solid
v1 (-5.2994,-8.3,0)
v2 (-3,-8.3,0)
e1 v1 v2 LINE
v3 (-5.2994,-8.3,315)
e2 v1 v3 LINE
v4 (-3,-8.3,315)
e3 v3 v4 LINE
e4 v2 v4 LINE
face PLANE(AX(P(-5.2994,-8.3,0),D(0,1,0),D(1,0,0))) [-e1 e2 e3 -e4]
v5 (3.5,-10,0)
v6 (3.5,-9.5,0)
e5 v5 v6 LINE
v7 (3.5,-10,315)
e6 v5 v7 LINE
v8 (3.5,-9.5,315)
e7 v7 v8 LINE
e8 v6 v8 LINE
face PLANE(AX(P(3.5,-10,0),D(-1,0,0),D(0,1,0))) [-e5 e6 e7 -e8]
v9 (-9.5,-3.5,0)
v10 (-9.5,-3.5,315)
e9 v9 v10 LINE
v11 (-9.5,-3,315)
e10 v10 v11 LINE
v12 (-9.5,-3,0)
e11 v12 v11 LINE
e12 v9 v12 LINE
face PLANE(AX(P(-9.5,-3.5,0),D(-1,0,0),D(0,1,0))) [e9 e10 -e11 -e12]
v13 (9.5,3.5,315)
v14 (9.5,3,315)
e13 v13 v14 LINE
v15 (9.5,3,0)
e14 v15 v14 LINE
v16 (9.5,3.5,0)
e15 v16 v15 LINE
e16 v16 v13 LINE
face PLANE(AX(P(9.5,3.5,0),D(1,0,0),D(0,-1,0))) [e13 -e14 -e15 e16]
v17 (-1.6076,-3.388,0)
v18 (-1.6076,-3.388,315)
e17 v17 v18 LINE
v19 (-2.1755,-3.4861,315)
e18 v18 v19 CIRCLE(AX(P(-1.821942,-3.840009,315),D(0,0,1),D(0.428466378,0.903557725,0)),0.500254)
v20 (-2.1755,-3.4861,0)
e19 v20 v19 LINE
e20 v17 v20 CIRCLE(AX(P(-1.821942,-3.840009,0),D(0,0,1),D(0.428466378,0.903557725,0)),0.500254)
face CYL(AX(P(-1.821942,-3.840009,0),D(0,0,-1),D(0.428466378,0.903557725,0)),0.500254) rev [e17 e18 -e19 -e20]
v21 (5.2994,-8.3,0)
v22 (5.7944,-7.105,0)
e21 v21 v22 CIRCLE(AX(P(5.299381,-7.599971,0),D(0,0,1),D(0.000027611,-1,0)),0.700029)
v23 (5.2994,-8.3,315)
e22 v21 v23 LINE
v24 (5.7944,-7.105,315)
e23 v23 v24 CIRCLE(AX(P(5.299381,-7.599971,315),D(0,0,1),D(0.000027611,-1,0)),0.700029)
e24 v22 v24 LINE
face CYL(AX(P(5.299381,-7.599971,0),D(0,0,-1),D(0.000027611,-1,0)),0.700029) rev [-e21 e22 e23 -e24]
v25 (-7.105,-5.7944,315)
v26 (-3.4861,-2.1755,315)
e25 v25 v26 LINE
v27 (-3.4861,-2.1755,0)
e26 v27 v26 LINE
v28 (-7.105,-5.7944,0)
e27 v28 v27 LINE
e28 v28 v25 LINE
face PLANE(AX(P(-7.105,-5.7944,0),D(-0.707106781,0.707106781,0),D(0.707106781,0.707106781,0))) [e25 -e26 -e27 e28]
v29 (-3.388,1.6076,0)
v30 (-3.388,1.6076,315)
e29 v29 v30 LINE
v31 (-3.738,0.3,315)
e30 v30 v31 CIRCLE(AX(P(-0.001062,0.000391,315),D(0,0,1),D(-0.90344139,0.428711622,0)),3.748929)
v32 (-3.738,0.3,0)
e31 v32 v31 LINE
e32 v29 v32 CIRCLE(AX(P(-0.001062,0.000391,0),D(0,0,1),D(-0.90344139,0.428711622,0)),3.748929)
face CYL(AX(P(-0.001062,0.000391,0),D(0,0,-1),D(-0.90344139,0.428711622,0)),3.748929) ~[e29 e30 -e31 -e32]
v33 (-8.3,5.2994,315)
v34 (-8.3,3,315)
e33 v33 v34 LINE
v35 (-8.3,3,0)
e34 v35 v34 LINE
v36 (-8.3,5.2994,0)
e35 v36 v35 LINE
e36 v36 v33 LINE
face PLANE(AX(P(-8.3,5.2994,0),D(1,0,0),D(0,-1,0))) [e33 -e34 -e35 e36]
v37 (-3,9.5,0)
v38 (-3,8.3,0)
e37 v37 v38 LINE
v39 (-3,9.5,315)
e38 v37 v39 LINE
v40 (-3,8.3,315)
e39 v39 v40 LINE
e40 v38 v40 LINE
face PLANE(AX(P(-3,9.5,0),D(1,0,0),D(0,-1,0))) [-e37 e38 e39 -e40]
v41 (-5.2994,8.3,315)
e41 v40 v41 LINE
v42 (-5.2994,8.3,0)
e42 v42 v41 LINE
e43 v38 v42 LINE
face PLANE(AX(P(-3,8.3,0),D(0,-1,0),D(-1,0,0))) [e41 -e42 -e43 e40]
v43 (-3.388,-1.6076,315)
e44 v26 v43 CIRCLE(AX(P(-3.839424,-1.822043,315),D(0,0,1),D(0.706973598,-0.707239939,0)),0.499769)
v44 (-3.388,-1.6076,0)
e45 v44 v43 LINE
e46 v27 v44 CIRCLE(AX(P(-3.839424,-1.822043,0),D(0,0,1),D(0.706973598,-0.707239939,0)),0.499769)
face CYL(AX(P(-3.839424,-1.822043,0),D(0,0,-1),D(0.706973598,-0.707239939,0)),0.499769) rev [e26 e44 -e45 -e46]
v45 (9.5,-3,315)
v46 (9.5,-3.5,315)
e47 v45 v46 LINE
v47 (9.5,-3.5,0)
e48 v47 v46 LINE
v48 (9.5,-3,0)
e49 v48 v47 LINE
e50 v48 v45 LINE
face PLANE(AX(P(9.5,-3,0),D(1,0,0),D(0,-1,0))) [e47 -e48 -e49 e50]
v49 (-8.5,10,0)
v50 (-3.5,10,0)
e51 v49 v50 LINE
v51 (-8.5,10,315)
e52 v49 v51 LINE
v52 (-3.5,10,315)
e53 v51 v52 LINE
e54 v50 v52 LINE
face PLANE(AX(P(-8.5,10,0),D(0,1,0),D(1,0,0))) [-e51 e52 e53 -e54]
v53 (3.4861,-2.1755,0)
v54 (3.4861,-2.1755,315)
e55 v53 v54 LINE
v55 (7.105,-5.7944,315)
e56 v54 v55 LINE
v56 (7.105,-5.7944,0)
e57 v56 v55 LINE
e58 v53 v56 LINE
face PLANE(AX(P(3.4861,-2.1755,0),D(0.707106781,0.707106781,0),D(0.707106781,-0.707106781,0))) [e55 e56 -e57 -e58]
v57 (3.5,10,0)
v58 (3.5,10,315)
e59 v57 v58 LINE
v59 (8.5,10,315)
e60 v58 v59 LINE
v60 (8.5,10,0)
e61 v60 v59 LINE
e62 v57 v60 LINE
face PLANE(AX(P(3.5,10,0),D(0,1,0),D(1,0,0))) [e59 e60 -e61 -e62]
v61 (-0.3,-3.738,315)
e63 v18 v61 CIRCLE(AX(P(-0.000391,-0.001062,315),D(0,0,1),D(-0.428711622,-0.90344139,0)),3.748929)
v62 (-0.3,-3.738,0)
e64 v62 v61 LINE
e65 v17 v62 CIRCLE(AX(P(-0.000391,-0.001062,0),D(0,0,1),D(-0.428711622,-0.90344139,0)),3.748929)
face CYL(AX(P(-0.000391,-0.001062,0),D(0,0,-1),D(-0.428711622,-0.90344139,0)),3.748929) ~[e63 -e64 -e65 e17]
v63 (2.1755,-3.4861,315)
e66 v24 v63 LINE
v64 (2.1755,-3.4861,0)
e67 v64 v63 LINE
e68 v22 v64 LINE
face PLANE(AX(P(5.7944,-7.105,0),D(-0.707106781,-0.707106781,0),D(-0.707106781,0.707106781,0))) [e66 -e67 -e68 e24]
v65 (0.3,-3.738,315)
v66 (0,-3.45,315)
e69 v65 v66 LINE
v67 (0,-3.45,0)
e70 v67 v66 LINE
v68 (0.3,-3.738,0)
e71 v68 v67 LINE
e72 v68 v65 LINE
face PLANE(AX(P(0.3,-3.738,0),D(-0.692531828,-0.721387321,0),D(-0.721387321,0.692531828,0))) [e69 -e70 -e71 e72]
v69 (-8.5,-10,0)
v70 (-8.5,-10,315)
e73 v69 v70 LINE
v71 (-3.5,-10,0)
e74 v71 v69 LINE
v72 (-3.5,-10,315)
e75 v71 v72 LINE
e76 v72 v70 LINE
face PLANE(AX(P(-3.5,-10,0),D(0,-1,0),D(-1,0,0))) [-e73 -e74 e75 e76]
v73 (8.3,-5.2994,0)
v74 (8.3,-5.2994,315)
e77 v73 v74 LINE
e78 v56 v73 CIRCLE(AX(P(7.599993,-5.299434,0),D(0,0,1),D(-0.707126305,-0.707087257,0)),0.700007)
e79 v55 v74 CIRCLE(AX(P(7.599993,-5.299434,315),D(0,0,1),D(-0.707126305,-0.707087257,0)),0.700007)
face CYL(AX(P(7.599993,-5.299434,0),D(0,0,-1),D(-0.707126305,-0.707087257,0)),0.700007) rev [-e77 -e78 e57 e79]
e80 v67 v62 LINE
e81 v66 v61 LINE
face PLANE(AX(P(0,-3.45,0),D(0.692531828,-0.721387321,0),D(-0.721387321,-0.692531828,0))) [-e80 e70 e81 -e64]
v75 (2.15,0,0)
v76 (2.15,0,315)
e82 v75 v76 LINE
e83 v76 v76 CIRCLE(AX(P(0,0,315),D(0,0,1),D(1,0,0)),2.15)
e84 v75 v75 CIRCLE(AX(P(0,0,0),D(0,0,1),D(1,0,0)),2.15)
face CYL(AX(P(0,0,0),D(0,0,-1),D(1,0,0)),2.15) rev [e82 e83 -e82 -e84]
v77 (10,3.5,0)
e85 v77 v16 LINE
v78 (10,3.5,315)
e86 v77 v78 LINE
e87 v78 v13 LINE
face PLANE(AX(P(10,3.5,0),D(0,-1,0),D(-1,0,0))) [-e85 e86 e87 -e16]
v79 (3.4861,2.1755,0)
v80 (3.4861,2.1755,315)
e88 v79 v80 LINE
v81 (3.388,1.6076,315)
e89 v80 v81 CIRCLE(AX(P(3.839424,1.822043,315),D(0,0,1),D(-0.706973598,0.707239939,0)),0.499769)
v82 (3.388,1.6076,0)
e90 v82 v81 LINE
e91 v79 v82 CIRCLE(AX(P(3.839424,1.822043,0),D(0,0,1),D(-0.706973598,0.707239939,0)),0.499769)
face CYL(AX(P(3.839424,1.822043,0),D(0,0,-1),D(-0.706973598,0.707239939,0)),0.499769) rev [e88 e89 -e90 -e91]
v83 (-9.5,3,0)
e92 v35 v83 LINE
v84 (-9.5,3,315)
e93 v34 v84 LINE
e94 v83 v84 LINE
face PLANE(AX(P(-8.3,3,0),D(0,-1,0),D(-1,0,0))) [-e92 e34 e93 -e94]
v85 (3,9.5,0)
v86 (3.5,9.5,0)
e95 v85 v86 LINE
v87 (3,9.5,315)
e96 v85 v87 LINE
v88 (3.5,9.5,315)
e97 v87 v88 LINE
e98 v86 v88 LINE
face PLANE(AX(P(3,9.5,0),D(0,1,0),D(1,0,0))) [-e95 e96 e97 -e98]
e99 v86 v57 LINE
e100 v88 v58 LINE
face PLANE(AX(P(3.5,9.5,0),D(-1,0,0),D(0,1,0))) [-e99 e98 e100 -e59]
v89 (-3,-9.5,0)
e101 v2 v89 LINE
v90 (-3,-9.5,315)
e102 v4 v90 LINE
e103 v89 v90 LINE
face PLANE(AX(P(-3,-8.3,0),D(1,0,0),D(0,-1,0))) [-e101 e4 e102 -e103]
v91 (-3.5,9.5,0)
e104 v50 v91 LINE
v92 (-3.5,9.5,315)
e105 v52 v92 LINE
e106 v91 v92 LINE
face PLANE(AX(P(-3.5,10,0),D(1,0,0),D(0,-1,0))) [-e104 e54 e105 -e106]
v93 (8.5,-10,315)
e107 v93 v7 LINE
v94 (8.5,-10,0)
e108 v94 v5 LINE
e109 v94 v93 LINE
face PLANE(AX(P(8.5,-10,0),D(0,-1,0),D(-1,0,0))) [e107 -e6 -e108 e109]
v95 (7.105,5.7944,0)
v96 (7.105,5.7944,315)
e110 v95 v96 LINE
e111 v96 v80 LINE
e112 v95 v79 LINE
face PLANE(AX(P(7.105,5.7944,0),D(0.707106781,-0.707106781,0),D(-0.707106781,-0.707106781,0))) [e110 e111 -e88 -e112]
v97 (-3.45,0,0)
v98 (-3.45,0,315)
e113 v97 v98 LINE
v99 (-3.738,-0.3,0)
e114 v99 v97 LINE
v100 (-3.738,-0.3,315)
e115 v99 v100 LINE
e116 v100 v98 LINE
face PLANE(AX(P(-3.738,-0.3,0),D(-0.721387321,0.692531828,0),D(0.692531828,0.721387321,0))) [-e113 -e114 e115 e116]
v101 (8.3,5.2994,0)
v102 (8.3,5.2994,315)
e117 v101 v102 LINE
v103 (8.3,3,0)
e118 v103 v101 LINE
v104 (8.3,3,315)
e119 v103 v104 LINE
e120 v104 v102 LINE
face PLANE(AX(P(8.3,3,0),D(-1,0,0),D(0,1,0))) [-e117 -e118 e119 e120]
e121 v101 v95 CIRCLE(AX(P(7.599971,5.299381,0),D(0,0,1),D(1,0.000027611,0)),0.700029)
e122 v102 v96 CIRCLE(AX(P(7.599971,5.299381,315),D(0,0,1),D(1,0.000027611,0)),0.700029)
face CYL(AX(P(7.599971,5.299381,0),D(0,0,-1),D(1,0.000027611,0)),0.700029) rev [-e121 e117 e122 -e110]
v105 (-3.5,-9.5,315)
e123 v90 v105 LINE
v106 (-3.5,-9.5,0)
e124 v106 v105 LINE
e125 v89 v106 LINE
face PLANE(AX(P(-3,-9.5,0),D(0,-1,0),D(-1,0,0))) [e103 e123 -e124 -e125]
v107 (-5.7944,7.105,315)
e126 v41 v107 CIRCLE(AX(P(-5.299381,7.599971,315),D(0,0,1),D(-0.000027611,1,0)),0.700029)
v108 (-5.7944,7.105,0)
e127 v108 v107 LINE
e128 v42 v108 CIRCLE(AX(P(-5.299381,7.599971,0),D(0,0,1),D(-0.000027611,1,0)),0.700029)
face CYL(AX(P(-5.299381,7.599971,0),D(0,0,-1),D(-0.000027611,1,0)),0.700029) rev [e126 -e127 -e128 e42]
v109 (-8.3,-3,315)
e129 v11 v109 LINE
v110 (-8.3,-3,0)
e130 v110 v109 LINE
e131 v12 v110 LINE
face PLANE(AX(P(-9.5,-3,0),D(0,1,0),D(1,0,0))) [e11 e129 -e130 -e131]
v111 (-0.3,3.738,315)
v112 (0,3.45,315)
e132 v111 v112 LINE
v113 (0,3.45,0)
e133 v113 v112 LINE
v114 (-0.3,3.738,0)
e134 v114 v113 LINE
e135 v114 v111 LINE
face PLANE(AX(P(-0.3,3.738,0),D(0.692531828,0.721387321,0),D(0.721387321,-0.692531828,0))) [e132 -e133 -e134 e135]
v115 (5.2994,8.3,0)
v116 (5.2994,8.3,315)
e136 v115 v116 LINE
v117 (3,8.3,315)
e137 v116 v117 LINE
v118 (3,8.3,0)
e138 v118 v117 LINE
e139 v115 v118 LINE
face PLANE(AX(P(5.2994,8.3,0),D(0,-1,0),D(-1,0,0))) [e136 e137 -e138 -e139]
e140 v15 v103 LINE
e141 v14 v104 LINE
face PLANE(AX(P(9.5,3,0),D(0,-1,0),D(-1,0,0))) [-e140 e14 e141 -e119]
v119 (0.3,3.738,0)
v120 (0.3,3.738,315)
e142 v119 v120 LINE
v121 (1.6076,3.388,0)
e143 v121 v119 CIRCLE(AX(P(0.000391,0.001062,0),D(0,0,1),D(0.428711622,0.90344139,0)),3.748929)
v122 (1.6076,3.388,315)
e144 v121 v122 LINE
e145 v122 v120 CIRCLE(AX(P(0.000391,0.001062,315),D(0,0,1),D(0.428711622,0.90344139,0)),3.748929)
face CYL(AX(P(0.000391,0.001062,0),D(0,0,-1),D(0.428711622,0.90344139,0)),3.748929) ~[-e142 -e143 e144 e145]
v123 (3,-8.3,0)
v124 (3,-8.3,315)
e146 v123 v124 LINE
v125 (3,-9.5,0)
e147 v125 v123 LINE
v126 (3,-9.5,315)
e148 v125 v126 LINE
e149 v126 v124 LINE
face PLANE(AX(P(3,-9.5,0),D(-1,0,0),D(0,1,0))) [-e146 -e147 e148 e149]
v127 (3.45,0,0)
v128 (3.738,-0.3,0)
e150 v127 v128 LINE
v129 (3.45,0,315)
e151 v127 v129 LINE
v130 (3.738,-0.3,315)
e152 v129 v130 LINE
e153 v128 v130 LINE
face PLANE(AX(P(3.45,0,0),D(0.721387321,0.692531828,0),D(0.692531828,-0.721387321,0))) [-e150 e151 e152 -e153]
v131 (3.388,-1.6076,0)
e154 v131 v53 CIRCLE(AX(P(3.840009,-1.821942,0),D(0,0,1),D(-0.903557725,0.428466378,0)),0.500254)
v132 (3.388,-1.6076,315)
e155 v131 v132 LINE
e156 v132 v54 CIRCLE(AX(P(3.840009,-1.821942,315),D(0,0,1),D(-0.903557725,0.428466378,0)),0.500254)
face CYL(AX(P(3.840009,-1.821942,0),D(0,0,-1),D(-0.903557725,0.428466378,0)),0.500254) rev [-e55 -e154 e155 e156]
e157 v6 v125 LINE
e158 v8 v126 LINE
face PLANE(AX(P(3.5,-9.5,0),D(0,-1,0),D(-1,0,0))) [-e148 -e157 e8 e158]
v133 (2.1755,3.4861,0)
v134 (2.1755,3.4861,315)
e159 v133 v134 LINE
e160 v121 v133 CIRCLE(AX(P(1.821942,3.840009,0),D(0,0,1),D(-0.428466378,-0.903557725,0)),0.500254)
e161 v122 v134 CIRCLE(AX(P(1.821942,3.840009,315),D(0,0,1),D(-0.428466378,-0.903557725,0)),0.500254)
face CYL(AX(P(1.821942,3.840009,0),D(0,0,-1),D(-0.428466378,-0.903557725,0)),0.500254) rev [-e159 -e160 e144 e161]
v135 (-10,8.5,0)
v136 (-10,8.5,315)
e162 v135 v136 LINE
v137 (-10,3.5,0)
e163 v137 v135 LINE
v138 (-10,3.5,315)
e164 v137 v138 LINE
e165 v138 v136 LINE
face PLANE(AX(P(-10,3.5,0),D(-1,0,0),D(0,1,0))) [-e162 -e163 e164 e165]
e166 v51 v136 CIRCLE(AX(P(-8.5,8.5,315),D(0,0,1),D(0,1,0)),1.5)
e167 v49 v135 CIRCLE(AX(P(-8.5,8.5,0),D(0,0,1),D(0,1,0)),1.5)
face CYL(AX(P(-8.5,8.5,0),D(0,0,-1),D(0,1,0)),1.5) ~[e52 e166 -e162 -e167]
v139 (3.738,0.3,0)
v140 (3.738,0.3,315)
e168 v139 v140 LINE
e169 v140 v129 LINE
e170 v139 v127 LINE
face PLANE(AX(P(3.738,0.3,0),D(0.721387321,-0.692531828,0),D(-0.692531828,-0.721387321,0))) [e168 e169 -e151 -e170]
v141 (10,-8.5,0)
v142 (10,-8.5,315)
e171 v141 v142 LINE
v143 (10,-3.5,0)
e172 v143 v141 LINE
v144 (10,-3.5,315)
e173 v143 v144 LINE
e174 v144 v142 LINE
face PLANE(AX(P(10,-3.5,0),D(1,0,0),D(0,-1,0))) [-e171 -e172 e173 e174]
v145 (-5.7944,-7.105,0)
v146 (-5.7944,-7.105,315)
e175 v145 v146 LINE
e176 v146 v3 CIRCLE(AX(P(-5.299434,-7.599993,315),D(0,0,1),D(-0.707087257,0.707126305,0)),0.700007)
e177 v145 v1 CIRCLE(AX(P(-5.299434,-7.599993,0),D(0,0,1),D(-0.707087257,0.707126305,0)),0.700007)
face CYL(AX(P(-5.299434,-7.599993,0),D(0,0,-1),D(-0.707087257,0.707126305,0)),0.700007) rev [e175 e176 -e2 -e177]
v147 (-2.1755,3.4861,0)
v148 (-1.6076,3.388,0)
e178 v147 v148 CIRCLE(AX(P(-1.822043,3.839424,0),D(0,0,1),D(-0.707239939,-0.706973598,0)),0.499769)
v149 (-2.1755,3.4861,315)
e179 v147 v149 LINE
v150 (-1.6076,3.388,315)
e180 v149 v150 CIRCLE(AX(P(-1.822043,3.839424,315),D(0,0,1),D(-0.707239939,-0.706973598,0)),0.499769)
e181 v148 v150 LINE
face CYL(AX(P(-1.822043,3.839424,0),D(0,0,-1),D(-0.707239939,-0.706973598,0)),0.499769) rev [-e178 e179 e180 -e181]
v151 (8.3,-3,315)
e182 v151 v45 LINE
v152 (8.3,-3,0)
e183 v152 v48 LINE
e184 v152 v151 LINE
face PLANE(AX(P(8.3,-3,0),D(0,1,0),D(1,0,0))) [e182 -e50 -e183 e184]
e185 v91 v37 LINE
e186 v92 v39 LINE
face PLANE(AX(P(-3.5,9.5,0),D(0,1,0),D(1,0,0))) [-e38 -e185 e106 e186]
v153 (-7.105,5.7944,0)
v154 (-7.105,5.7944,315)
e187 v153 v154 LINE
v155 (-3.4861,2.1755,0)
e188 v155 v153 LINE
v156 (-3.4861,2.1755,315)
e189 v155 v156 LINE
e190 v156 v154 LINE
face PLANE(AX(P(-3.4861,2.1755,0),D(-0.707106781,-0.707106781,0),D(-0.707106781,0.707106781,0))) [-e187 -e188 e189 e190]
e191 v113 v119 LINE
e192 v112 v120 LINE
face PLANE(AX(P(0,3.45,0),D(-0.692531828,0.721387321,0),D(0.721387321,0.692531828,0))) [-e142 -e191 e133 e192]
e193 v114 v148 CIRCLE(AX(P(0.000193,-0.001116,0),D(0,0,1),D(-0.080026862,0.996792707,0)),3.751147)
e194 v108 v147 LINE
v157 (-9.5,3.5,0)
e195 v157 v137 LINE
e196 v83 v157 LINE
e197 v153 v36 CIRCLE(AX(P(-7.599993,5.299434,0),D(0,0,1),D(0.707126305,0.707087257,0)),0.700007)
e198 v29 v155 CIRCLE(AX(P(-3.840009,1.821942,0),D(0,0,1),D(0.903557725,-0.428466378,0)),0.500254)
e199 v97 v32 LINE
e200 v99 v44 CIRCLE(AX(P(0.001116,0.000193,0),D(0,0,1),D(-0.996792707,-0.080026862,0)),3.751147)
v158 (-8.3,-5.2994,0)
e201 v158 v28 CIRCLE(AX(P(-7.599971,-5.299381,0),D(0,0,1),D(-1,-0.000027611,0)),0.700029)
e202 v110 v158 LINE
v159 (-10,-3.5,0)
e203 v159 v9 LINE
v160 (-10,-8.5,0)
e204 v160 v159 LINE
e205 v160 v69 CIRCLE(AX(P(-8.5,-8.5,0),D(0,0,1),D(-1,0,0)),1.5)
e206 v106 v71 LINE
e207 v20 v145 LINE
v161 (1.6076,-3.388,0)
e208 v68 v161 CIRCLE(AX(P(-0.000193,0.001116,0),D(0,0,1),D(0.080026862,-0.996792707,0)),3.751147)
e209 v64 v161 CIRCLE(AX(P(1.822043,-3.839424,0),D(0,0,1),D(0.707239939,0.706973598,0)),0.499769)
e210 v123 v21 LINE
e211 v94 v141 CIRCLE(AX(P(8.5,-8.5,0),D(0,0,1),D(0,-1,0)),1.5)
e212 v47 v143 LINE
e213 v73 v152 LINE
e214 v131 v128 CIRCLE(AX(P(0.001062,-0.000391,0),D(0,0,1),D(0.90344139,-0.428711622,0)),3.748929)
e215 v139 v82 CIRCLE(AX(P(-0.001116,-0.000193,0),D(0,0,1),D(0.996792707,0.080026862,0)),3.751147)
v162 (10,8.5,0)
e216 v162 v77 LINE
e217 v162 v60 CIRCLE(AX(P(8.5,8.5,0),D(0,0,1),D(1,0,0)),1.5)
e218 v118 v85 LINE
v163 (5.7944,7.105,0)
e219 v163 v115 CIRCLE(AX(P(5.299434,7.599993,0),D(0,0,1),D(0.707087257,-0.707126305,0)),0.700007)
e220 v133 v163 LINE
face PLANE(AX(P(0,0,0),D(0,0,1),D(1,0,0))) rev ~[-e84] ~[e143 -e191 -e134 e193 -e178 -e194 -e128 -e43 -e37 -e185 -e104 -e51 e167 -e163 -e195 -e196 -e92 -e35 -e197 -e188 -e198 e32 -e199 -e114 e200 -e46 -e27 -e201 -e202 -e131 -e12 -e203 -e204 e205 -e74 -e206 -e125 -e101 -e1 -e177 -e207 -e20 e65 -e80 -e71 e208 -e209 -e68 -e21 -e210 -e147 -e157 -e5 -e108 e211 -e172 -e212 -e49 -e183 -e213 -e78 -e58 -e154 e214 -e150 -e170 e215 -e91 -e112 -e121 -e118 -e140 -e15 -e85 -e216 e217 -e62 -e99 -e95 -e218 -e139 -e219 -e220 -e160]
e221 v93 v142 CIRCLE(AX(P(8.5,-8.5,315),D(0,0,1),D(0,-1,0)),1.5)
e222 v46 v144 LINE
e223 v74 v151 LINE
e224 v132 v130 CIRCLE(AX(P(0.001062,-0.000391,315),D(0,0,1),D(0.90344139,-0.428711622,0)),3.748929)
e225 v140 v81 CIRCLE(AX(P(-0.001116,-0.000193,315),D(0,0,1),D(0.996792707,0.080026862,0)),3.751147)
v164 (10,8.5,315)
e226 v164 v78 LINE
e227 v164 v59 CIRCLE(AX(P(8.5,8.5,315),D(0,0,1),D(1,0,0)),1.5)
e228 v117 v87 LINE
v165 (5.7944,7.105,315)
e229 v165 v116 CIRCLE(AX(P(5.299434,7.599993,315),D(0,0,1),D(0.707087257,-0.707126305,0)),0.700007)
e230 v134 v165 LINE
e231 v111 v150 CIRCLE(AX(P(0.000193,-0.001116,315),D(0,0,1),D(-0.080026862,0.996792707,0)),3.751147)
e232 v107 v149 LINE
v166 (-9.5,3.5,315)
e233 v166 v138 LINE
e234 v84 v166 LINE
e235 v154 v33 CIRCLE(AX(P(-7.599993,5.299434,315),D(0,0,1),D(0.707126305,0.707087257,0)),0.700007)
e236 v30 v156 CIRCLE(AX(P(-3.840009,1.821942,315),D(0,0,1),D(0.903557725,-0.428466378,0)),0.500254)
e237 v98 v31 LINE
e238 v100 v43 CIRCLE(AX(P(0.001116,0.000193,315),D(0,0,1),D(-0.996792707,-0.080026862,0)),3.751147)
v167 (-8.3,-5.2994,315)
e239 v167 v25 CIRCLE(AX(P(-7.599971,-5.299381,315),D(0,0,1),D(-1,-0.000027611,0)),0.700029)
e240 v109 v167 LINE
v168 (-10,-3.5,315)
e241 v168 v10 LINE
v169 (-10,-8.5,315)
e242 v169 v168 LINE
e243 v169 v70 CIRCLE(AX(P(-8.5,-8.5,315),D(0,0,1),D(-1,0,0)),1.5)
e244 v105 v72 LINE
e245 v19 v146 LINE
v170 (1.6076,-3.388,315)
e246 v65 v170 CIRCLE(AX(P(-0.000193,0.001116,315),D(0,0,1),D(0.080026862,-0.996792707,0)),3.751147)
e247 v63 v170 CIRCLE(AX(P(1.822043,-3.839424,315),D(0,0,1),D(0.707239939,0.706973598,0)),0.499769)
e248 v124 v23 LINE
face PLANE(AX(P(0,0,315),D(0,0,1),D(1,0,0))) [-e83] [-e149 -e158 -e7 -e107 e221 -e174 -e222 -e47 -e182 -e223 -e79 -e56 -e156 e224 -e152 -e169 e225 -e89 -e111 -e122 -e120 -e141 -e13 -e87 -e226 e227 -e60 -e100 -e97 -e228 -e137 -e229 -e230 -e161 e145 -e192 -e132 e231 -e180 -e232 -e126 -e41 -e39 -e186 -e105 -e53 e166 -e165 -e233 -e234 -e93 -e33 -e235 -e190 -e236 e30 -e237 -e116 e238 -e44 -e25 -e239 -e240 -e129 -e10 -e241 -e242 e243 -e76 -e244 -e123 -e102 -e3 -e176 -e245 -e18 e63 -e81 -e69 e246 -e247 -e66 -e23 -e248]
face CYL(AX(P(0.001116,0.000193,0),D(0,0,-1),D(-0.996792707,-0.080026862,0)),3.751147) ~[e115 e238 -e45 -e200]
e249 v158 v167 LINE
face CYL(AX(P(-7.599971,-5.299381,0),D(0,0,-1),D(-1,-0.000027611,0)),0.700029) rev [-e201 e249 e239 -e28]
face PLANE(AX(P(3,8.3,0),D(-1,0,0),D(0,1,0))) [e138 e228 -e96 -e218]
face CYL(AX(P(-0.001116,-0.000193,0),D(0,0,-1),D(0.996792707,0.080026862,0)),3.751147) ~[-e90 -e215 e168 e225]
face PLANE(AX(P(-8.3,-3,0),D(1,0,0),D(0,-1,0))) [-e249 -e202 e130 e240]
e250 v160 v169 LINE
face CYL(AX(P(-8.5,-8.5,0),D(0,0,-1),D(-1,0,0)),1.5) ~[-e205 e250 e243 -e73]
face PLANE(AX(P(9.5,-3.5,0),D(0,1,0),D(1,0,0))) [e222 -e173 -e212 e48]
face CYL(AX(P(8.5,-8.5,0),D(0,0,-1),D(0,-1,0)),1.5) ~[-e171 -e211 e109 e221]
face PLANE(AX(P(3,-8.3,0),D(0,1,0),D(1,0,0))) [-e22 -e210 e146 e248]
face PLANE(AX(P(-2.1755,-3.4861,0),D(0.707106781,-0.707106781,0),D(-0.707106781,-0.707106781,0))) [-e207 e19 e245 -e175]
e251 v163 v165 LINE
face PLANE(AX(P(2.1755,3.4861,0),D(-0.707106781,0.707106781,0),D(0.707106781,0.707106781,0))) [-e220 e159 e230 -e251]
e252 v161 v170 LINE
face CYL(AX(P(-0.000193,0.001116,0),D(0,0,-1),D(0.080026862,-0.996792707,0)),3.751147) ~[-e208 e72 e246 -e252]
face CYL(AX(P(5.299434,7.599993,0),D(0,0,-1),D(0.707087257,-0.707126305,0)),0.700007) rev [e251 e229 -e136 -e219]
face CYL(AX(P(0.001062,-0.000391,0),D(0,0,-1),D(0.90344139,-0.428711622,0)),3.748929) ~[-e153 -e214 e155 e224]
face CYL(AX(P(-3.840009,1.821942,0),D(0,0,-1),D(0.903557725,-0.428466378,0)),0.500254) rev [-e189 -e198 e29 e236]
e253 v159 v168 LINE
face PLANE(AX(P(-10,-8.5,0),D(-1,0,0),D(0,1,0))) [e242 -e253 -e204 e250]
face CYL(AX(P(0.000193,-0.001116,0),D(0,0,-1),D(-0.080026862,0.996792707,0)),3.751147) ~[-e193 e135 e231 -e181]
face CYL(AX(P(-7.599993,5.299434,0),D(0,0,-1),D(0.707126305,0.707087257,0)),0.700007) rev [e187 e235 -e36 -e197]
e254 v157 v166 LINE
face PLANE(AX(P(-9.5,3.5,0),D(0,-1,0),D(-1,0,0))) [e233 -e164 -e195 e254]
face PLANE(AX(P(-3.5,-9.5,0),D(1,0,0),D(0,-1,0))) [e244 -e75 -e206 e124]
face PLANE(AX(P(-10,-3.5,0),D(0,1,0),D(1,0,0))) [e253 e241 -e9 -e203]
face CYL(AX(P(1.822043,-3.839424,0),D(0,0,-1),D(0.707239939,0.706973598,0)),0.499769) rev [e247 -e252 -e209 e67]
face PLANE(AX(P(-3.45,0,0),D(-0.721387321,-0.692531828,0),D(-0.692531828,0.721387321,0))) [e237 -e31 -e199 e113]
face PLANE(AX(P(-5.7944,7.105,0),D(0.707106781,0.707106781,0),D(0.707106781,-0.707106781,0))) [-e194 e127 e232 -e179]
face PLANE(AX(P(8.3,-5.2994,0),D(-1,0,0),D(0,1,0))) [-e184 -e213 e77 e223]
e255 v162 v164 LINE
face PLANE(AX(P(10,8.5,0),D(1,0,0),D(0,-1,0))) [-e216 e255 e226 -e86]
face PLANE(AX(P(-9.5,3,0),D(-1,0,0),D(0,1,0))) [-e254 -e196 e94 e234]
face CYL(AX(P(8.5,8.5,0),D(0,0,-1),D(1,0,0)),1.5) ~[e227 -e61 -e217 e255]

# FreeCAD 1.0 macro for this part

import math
import FreeCAD as App
import Part
import Sketcher

V = App.Vector
Q = App.Units.Quantity

doc = App.newDocument("Part")
body = doc.addObject("PartDesign::Body", "Body")

sketch1 = body.newObject("Sketcher::SketchObject", "Sketch")
sketch1.AttachmentSupport = (doc.getObject("XY_Plane"), [""])
sketch1.MapMode = "FlatFace"
sketch1.addGeometry([
    Part.LineSegment(V(-3.5, -10, 0), V(-3.5, -9.5, 0)),
    Part.LineSegment(V(-3.5, -9.5, 0), V(-3, -9.5, 0)),
    Part.LineSegment(V(-3, -9.5, 0), V(-3, -8.3, 0)),
    Part.LineSegment(V(-3, -8.3, 0), V(-5.2994, -8.3, 0)),
    Part.ArcOfCircle(Part.Circle(V(-5.2994, -7.6, 0), V(0, 0, 1), 0.700036), math.radians(135), math.radians(270)),
    Part.LineSegment(V(-5.7944, -7.105, 0), V(-2.1755, -3.4861, 0)),
    Part.ArcOfCircle(Part.Circle(V(-1.8219, -3.8397, 0), V(0, 0, 1), 0.499957), math.radians(64.618937), math.radians(135)),
    Part.ArcOfCircle(Part.Circle(V(-0.000391, -0.001062, 0), V(0, 0, 1), 3.748929), math.radians(-115.385824), math.radians(-94.583891)),
    Part.LineSegment(V(-0.3, -3.738, 0), V(0, -3.45, 0)),
    Part.LineSegment(V(0, -3.45, 0), V(0.3, -3.738, 0)),
    Part.ArcOfCircle(Part.Circle(V(-0.000193, 0.001116, 0), V(0, 0, 1), 3.751147), math.radians(-85.40989), math.radians(-64.620395)),
    Part.ArcOfCircle(Part.Circle(V(1.8219, -3.8397, 0), V(0, 0, 1), 0.500066), math.radians(45), math.radians(115.381063)),
    Part.LineSegment(V(2.1755, -3.4861, 0), V(5.7944, -7.105, 0)),
    Part.ArcOfCircle(Part.Circle(V(5.2994, -7.6, 0), V(0, 0, 1), 0.7), math.radians(-90), math.radians(45)),
    Part.LineSegment(V(5.2994, -8.3, 0), V(3, -8.3, 0)),
    Part.LineSegment(V(3, -8.3, 0), V(3, -9.5, 0)),
    Part.LineSegment(V(3, -9.5, 0), V(3.5, -9.5, 0)),
    Part.LineSegment(V(3.5, -9.5, 0), V(3.5, -10, 0)),
    Part.LineSegment(V(3.5, -10, 0), V(8.5, -10, 0)),
    Part.ArcOfCircle(Part.Circle(V(8.5, -8.5, 0), V(0, 0, 1), 1.5), math.radians(-90), math.radians(0)),
    Part.LineSegment(V(10, -8.5, 0), V(10, -3.5, 0)),
    Part.LineSegment(V(10, -3.5, 0), V(9.5, -3.5, 0)),
    Part.LineSegment(V(9.5, -3.5, 0), V(9.5, -3, 0)),
    Part.LineSegment(V(9.5, -3, 0), V(8.3, -3, 0)),
    Part.LineSegment(V(8.3, -3, 0), V(8.3, -5.2994, 0)),
    Part.ArcOfCircle(Part.Circle(V(7.6, -5.2994, 0), V(0, 0, 1), 0.700036), math.radians(-135), math.radians(0)),
    Part.LineSegment(V(7.105, -5.7944, 0), V(3.4861, -2.1755, 0)),
    Part.ArcOfCircle(Part.Circle(V(3.8397, -1.8219, 0), V(0, 0, 1), 0.499957), math.radians(154.618937), math.radians(225)),
    Part.ArcOfCircle(Part.Circle(V(0.001062, -0.000391, 0), V(0, 0, 1), 3.748929), math.radians(-25.385824), math.radians(-4.583891)),
    Part.LineSegment(V(3.738, -0.3, 0), V(3.45, 0, 0)),
    Part.LineSegment(V(3.45, 0, 0), V(3.738, 0.3, 0)),
    Part.ArcOfCircle(Part.Circle(V(-0.001116, -0.000193, 0), V(0, 0, 1), 3.751147), math.radians(4.59011), math.radians(25.379605)),
    Part.ArcOfCircle(Part.Circle(V(3.8397, 1.8219, 0), V(0, 0, 1), 0.500066), math.radians(135), math.radians(205.381063)),
    Part.LineSegment(V(3.4861, 2.1755, 0), V(7.105, 5.7944, 0)),
    Part.ArcOfCircle(Part.Circle(V(7.6, 5.2994, 0), V(0, 0, 1), 0.7), math.radians(0), math.radians(135)),
    Part.LineSegment(V(8.3, 5.2994, 0), V(8.3, 3, 0)),
    Part.LineSegment(V(8.3, 3, 0), V(9.5, 3, 0)),
    Part.LineSegment(V(9.5, 3, 0), V(9.5, 3.5, 0)),
    Part.LineSegment(V(9.5, 3.5, 0), V(10, 3.5, 0)),
    Part.LineSegment(V(10, 3.5, 0), V(10, 8.5, 0)),
    Part.ArcOfCircle(Part.Circle(V(8.5, 8.5, 0), V(0, 0, 1), 1.5), math.radians(0), math.radians(90)),
    Part.LineSegment(V(8.5, 10, 0), V(3.5, 10, 0)),
    Part.LineSegment(V(3.5, 10, 0), V(3.5, 9.5, 0)),
    Part.LineSegment(V(3.5, 9.5, 0), V(3, 9.5, 0)),
    Part.LineSegment(V(3, 9.5, 0), V(3, 8.3, 0)),
    Part.LineSegment(V(3, 8.3, 0), V(5.2994, 8.3, 0)),
    Part.ArcOfCircle(Part.Circle(V(5.2994, 7.6, 0), V(0, 0, 1), 0.700036), math.radians(-45), math.radians(90)),
    Part.LineSegment(V(5.7944, 7.105, 0), V(2.1755, 3.4861, 0)),
    Part.ArcOfCircle(Part.Circle(V(1.8219, 3.8397, 0), V(0, 0, 1), 0.499957), math.radians(-115.381063), math.radians(-45)),
    Part.ArcOfCircle(Part.Circle(V(0.000391, 0.001062, 0), V(0, 0, 1), 3.748929), math.radians(64.614176), math.radians(85.416109)),
    Part.LineSegment(V(0.3, 3.738, 0), V(0, 3.45, 0)),
    Part.LineSegment(V(0, 3.45, 0), V(-0.3, 3.738, 0)),
    Part.ArcOfCircle(Part.Circle(V(0.000193, -0.001116, 0), V(0, 0, 1), 3.751147), math.radians(94.59011), math.radians(115.379605)),
    Part.ArcOfCircle(Part.Circle(V(-1.8219, 3.8397, 0), V(0, 0, 1), 0.500066), math.radians(-135), math.radians(-64.618937)),
    Part.LineSegment(V(-2.1755, 3.4861, 0), V(-5.7944, 7.105, 0)),
    Part.ArcOfCircle(Part.Circle(V(-5.2994, 7.6, 0), V(0, 0, 1), 0.7), math.radians(90), math.radians(225)),
    Part.LineSegment(V(-5.2994, 8.3, 0), V(-3, 8.3, 0)),
    Part.LineSegment(V(-3, 8.3, 0), V(-3, 9.5, 0)),
    Part.LineSegment(V(-3, 9.5, 0), V(-3.5, 9.5, 0)),
    Part.LineSegment(V(-3.5, 9.5, 0), V(-3.5, 10, 0)),
    Part.LineSegment(V(-3.5, 10, 0), V(-8.5, 10, 0)),
    Part.ArcOfCircle(Part.Circle(V(-8.5, 8.5, 0), V(0, 0, 1), 1.5), math.radians(90), math.radians(180)),
    Part.LineSegment(V(-10, 8.5, 0), V(-10, 3.5, 0)),
    Part.LineSegment(V(-10, 3.5, 0), V(-9.5, 3.5, 0)),
    Part.LineSegment(V(-9.5, 3.5, 0), V(-9.5, 3, 0)),
    Part.LineSegment(V(-9.5, 3, 0), V(-8.3, 3, 0)),
    Part.LineSegment(V(-8.3, 3, 0), V(-8.3, 5.2994, 0)),
    Part.ArcOfCircle(Part.Circle(V(-7.6, 5.2994, 0), V(0, 0, 1), 0.700036), math.radians(45), math.radians(180)),
    Part.LineSegment(V(-7.105, 5.7944, 0), V(-3.4861, 2.1755, 0)),
    Part.ArcOfCircle(Part.Circle(V(-3.8397, 1.8219, 0), V(0, 0, 1), 0.499957), math.radians(-25.381063), math.radians(45)),
    Part.ArcOfCircle(Part.Circle(V(-0.001062, 0.000391, 0), V(0, 0, 1), 3.748929), math.radians(154.614176), math.radians(175.416109)),
    Part.LineSegment(V(-3.738, 0.3, 0), V(-3.45, 0, 0)),
    Part.LineSegment(V(-3.45, 0, 0), V(-3.738, -0.3, 0)),
    Part.ArcOfCircle(Part.Circle(V(0.001116, 0.000193, 0), V(0, 0, 1), 3.751147), math.radians(-175.40989), math.radians(-154.620395)),
    Part.ArcOfCircle(Part.Circle(V(-3.8397, -1.8219, 0), V(0, 0, 1), 0.500066), math.radians(-45), math.radians(25.381063)),
    Part.LineSegment(V(-3.4861, -2.1755, 0), V(-7.105, -5.7944, 0)),
    Part.ArcOfCircle(Part.Circle(V(-7.6, -5.2994, 0), V(0, 0, 1), 0.7), math.radians(180), math.radians(315)),
    Part.LineSegment(V(-8.3, -5.2994, 0), V(-8.3, -3, 0)),
    Part.LineSegment(V(-8.3, -3, 0), V(-9.5, -3, 0)),
    Part.LineSegment(V(-9.5, -3, 0), V(-9.5, -3.5, 0)),
    Part.LineSegment(V(-9.5, -3.5, 0), V(-10, -3.5, 0)),
    Part.LineSegment(V(-10, -3.5, 0), V(-10, -8.5, 0)),
    Part.ArcOfCircle(Part.Circle(V(-8.5, -8.5, 0), V(0, 0, 1), 1.5), math.radians(180), math.radians(270)),
    Part.LineSegment(V(-8.5, -10, 0), V(-3.5, -10, 0)),
    Part.Circle(V(0, 0, 0), V(0, 0, 1), 2.15),
], False)
sketch1.addConstraint([
    Sketcher.Constraint("Coincident", 0, 2, 1, 1),
    Sketcher.Constraint("Coincident", 1, 2, 2, 1),
    Sketcher.Constraint("Coincident", 2, 2, 3, 1),
    Sketcher.Constraint("Coincident", 3, 2, 4, 2),
    Sketcher.Constraint("Coincident", 4, 1, 5, 1),
    Sketcher.Constraint("Coincident", 5, 2, 6, 2),
    Sketcher.Constraint("Coincident", 6, 1, 7, 1),
    Sketcher.Constraint("Coincident", 7, 2, 8, 1),
    Sketcher.Constraint("Coincident", 8, 2, 9, 1),
    Sketcher.Constraint("Coincident", 9, 2, 10, 1),
    Sketcher.Constraint("Coincident", 10, 2, 11, 2),
    Sketcher.Constraint("Coincident", 11, 1, 12, 1),
    Sketcher.Constraint("Coincident", 12, 2, 13, 2),
    Sketcher.Constraint("Coincident", 13, 1, 14, 1),
    Sketcher.Constraint("Coincident", 14, 2, 15, 1),
    Sketcher.Constraint("Coincident", 15, 2, 16, 1),
    Sketcher.Constraint("Coincident", 16, 2, 17, 1),
    Sketcher.Constraint("Coincident", 17, 2, 18, 1),
    Sketcher.Constraint("Coincident", 18, 2, 19, 1),
    Sketcher.Constraint("Coincident", 19, 2, 20, 1),
    Sketcher.Constraint("Coincident", 20, 2, 21, 1),
    Sketcher.Constraint("Coincident", 21, 2, 22, 1),
    Sketcher.Constraint("Coincident", 22, 2, 23, 1),
    Sketcher.Constraint("Coincident", 23, 2, 24, 1),
    Sketcher.Constraint("Coincident", 24, 2, 25, 2),
    Sketcher.Constraint("Coincident", 25, 1, 26, 1),
    Sketcher.Constraint("Coincident", 26, 2, 27, 2),
    Sketcher.Constraint("Coincident", 27, 1, 28, 1),
    Sketcher.Constraint("Coincident", 28, 2, 29, 1),
    Sketcher.Constraint("Coincident", 29, 2, 30, 1),
    Sketcher.Constraint("Coincident", 30, 2, 31, 1),
    Sketcher.Constraint("Coincident", 31, 2, 32, 2),
    Sketcher.Constraint("Coincident", 32, 1, 33, 1),
    Sketcher.Constraint("Coincident", 33, 2, 34, 2),
    Sketcher.Constraint("Coincident", 34, 1, 35, 1),
    Sketcher.Constraint("Coincident", 35, 2, 36, 1),
    Sketcher.Constraint("Coincident", 36, 2, 37, 1),
    Sketcher.Constraint("Coincident", 37, 2, 38, 1),
    Sketcher.Constraint("Coincident", 38, 2, 39, 1),
    Sketcher.Constraint("Coincident", 39, 2, 40, 1),
    Sketcher.Constraint("Coincident", 40, 2, 41, 1),
    Sketcher.Constraint("Coincident", 41, 2, 42, 1),
    Sketcher.Constraint("Coincident", 42, 2, 43, 1),
    Sketcher.Constraint("Coincident", 43, 2, 44, 1),
    Sketcher.Constraint("Coincident", 44, 2, 45, 1),
    Sketcher.Constraint("Coincident", 45, 2, 46, 2),
    Sketcher.Constraint("Coincident", 46, 1, 47, 1),
    Sketcher.Constraint("Coincident", 47, 2, 48, 2),
    Sketcher.Constraint("Coincident", 48, 1, 49, 1),
    Sketcher.Constraint("Coincident", 49, 2, 50, 1),
    Sketcher.Constraint("Coincident", 50, 2, 51, 1),
    Sketcher.Constraint("Coincident", 51, 2, 52, 1),
    Sketcher.Constraint("Coincident", 52, 2, 53, 2),
    Sketcher.Constraint("Coincident", 53, 1, 54, 1),
    Sketcher.Constraint("Coincident", 54, 2, 55, 2),
    Sketcher.Constraint("Coincident", 55, 1, 56, 1),
    Sketcher.Constraint("Coincident", 56, 2, 57, 1),
    Sketcher.Constraint("Coincident", 57, 2, 58, 1),
    Sketcher.Constraint("Coincident", 58, 2, 59, 1),
    Sketcher.Constraint("Coincident", 59, 2, 60, 1),
    Sketcher.Constraint("Coincident", 60, 2, 61, 1),
    Sketcher.Constraint("Coincident", 61, 2, 62, 1),
    Sketcher.Constraint("Coincident", 62, 2, 63, 1),
    Sketcher.Constraint("Coincident", 63, 2, 64, 1),
    Sketcher.Constraint("Coincident", 64, 2, 65, 1),
    Sketcher.Constraint("Coincident", 65, 2, 66, 1),
    Sketcher.Constraint("Coincident", 66, 2, 67, 2),
    Sketcher.Constraint("Coincident", 67, 1, 68, 1),
    Sketcher.Constraint("Coincident", 68, 2, 69, 2),
    Sketcher.Constraint("Coincident", 69, 1, 70, 1),
    Sketcher.Constraint("Coincident", 70, 2, 71, 1),
    Sketcher.Constraint("Coincident", 71, 2, 72, 1),
    Sketcher.Constraint("Coincident", 72, 2, 73, 1),
    Sketcher.Constraint("Coincident", 73, 2, 74, 2),
    Sketcher.Constraint("Coincident", 74, 1, 75, 1),
    Sketcher.Constraint("Coincident", 75, 2, 76, 2),
    Sketcher.Constraint("Coincident", 76, 1, 77, 1),
    Sketcher.Constraint("Coincident", 77, 2, 78, 1),
    Sketcher.Constraint("Coincident", 78, 2, 79, 1),
    Sketcher.Constraint("Coincident", 79, 2, 80, 1),
    Sketcher.Constraint("Coincident", 80, 2, 81, 1),
    Sketcher.Constraint("Coincident", 81, 2, 82, 1),
    Sketcher.Constraint("Coincident", 82, 2, 83, 1),
    Sketcher.Constraint("Coincident", 83, 2, 0, 1),
    Sketcher.Constraint("Vertical", 0),
    Sketcher.Constraint("Horizontal", 1),
    Sketcher.Constraint("Vertical", 2),
    Sketcher.Constraint("Horizontal", 3),
    Sketcher.Constraint("Horizontal", 14),
    Sketcher.Constraint("Vertical", 15),
    Sketcher.Constraint("Horizontal", 16),
    Sketcher.Constraint("Vertical", 17),
    Sketcher.Constraint("Horizontal", 18),
    Sketcher.Constraint("Vertical", 20),
    Sketcher.Constraint("Horizontal", 21),
    Sketcher.Constraint("Vertical", 22),
    Sketcher.Constraint("Horizontal", 23),
    Sketcher.Constraint("Vertical", 24),
    Sketcher.Constraint("Vertical", 35),
    Sketcher.Constraint("Horizontal", 36),
    Sketcher.Constraint("Vertical", 37),
    Sketcher.Constraint("Horizontal", 38),
    Sketcher.Constraint("Vertical", 39),
    Sketcher.Constraint("Horizontal", 41),
    Sketcher.Constraint("Vertical", 42),
    Sketcher.Constraint("Horizontal", 43),
    Sketcher.Constraint("Vertical", 44),
    Sketcher.Constraint("Horizontal", 45),
    Sketcher.Constraint("Horizontal", 56),
    Sketcher.Constraint("Vertical", 57),
    Sketcher.Constraint("Horizontal", 58),
    Sketcher.Constraint("Vertical", 59),
    Sketcher.Constraint("Horizontal", 60),
    Sketcher.Constraint("Vertical", 62),
    Sketcher.Constraint("Horizontal", 63),
    Sketcher.Constraint("Vertical", 64),
    Sketcher.Constraint("Horizontal", 65),
    Sketcher.Constraint("Vertical", 66),
    Sketcher.Constraint("Vertical", 77),
    Sketcher.Constraint("Horizontal", 78),
    Sketcher.Constraint("Vertical", 79),
    Sketcher.Constraint("Horizontal", 80),
    Sketcher.Constraint("Vertical", 81),
    Sketcher.Constraint("Horizontal", 83),
    Sketcher.Constraint("Coincident", 84, 3, -1, 1),
    Sketcher.Constraint("PointOnObject", 10, 3, -2),
    Sketcher.Constraint("PointOnObject", 31, 3, -1),
    Sketcher.Constraint("PointOnObject", 52, 3, -2),
    Sketcher.Constraint("PointOnObject", 73, 3, -1),
    Sketcher.Constraint("PointOnObject", 8, 2, -2),
    Sketcher.Constraint("PointOnObject", 29, 2, -1),
    Sketcher.Constraint("PointOnObject", 50, 2, -2),
    Sketcher.Constraint("PointOnObject", 71, 2, -1),
    Sketcher.Constraint("Diameter", 84, Q("4.3 mm")),
    Sketcher.Constraint("Radius", 4, Q("0.7 mm")),
    Sketcher.Constraint("Radius", 6, Q("0.5 mm")),
    Sketcher.Constraint("Radius", 11, Q("0.5 mm")),
    Sketcher.Constraint("Radius", 13, Q("0.7 mm")),
    Sketcher.Constraint("Radius", 19, Q("1.5 mm")),
    Sketcher.Constraint("Radius", 25, Q("0.7 mm")),
    Sketcher.Constraint("Radius", 27, Q("0.5 mm")),
    Sketcher.Constraint("Radius", 32, Q("0.5 mm")),
    Sketcher.Constraint("Radius", 34, Q("0.7 mm")),
    Sketcher.Constraint("Radius", 40, Q("1.5 mm")),
    Sketcher.Constraint("Radius", 46, Q("0.7 mm")),
    Sketcher.Constraint("Radius", 48, Q("0.5 mm")),
    Sketcher.Constraint("Radius", 53, Q("0.5 mm")),
    Sketcher.Constraint("Radius", 55, Q("0.7 mm")),
    Sketcher.Constraint("Radius", 61, Q("1.5 mm")),
    Sketcher.Constraint("Radius", 67, Q("0.7 mm")),
    Sketcher.Constraint("Radius", 69, Q("0.5 mm")),
    Sketcher.Constraint("Radius", 74, Q("0.5 mm")),
    Sketcher.Constraint("Radius", 76, Q("0.7 mm")),
    Sketcher.Constraint("Radius", 82, Q("1.5 mm")),
    Sketcher.Constraint("DistanceX", 18, 1, 18, 2, Q("5 mm")),
    Sketcher.Constraint("DistanceX", 41, 2, 41, 1, Q("5 mm")),
    Sketcher.Constraint("DistanceX", 60, 2, 60, 1, Q("5 mm")),
    Sketcher.Constraint("DistanceX", 83, 1, 83, 2, Q("5 mm")),
    Sketcher.Constraint("DistanceY", 20, 1, 20, 2, Q("5 mm")),
    Sketcher.Constraint("DistanceY", 39, 1, 39, 2, Q("5 mm")),
    Sketcher.Constraint("DistanceY", 62, 2, 62, 1, Q("5 mm")),
    Sketcher.Constraint("DistanceY", 81, 2, 81, 1, Q("5 mm")),
    Sketcher.Constraint("DistanceX", 1, 1, 1, 2, Q("0.5 mm")),
    Sketcher.Constraint("DistanceX", 16, 1, 16, 2, Q("0.5 mm")),
    Sketcher.Constraint("DistanceX", 21, 2, 21, 1, Q("0.5 mm")),
    Sketcher.Constraint("DistanceX", 23, 2, 23, 1, Q("1.2 mm")),
    Sketcher.Constraint("DistanceX", 36, 1, 36, 2, Q("1.2 mm")),
    Sketcher.Constraint("DistanceX", 38, 1, 38, 2, Q("0.5 mm")),
    Sketcher.Constraint("DistanceX", 43, 2, 43, 1, Q("0.5 mm")),
    Sketcher.Constraint("DistanceX", 58, 2, 58, 1, Q("0.5 mm")),
    Sketcher.Constraint("DistanceX", 63, 1, 63, 2, Q("0.5 mm")),
    Sketcher.Constraint("DistanceX", 65, 1, 65, 2, Q("1.2 mm")),
    Sketcher.Constraint("DistanceX", 78, 2, 78, 1, Q("1.2 mm")),
    Sketcher.Constraint("DistanceX", 80, 2, 80, 1, Q("0.5 mm")),
    Sketcher.Constraint("DistanceY", 0, 1, 0, 2, Q("0.5 mm")),
    Sketcher.Constraint("DistanceY", 2, 1, 2, 2, Q("1.2 mm")),
    Sketcher.Constraint("DistanceY", 15, 2, 15, 1, Q("1.2 mm")),
    Sketcher.Constraint("DistanceY", 17, 2, 17, 1, Q("0.5 mm")),
    Sketcher.Constraint("DistanceY", 22, 1, 22, 2, Q("0.5 mm")),
    Sketcher.Constraint("DistanceY", 37, 1, 37, 2, Q("0.5 mm")),
    Sketcher.Constraint("DistanceY", 42, 2, 42, 1, Q("0.5 mm")),
    Sketcher.Constraint("DistanceY", 44, 2, 44, 1, Q("1.2 mm")),
    Sketcher.Constraint("DistanceY", 57, 1, 57, 2, Q("1.2 mm")),
    Sketcher.Constraint("DistanceY", 59, 1, 59, 2, Q("0.5 mm")),
    Sketcher.Constraint("DistanceY", 64, 2, 64, 1, Q("0.5 mm")),
    Sketcher.Constraint("DistanceY", 79, 2, 79, 1, Q("0.5 mm")),
    Sketcher.Constraint("DistanceX", 1, 2, -1, 1, Q("3 mm")),
    Sketcher.Constraint("DistanceX", -1, 1, 14, 2, Q("3 mm")),
    Sketcher.Constraint("DistanceY", 17, 2, -1, 1, Q("10 mm")),
    Sketcher.Constraint("DistanceX", -1, 1, 19, 2, Q("10 mm")),
    Sketcher.Constraint("DistanceY", 22, 2, -1, 1, Q("3 mm")),
    Sketcher.Constraint("DistanceY", -1, 1, 35, 2, Q("3 mm")),
    Sketcher.Constraint("DistanceX", -1, 1, 38, 2, Q("10 mm")),
    Sketcher.Constraint("DistanceY", -1, 1, 40, 2, Q("10 mm")),
    Sketcher.Constraint("DistanceX", -1, 1, 43, 2, Q("3 mm")),
    Sketcher.Constraint("DistanceX", 56, 2, -1, 1, Q("3 mm")),
    Sketcher.Constraint("DistanceY", -1, 1, 59, 2, Q("10 mm")),
    Sketcher.Constraint("DistanceX", 61, 2, -1, 1, Q("10 mm")),
    Sketcher.Constraint("DistanceY", -1, 1, 64, 2, Q("3 mm")),
    Sketcher.Constraint("DistanceY", 77, 2, -1, 1, Q("3 mm")),
    Sketcher.Constraint("DistanceX", 80, 2, -1, 1, Q("10 mm")),
    Sketcher.Constraint("DistanceY", 82, 2, -1, 1, Q("10 mm")),
    Sketcher.Constraint("Radius", 7, Q("3.749 mm")),
    Sketcher.Constraint("Radius", 28, Q("3.749 mm")),
    Sketcher.Constraint("Radius", 49, Q("3.749 mm")),
    Sketcher.Constraint("Radius", 70, Q("3.749 mm")),
    Sketcher.Constraint("DistanceX", 7, 2, -1, 1, Q("0.3 mm")),
    Sketcher.Constraint("DistanceX", -1, 1, 9, 2, Q("0.3 mm")),
    Sketcher.Constraint("DistanceY", 28, 2, -1, 1, Q("0.3 mm")),
    Sketcher.Constraint("DistanceY", -1, 1, 30, 2, Q("0.3 mm")),
    Sketcher.Constraint("DistanceX", -1, 1, 49, 2, Q("0.3 mm")),
    Sketcher.Constraint("DistanceX", 51, 2, -1, 1, Q("0.3 mm")),
    Sketcher.Constraint("DistanceY", -1, 1, 70, 2, Q("0.3 mm")),
    Sketcher.Constraint("DistanceY", 72, 2, -1, 1, Q("0.3 mm")),
    Sketcher.Constraint("Radius", 10, Q("3.7511 mm")),
    Sketcher.Constraint("Radius", 31, Q("3.7511 mm")),
    Sketcher.Constraint("Radius", 52, Q("3.7511 mm")),
    Sketcher.Constraint("Radius", 73, Q("3.7511 mm")),
    Sketcher.Constraint("DistanceY", 8, 2, -1, 1, Q("3.45 mm")),
    Sketcher.Constraint("DistanceX", -1, 1, 29, 2, Q("3.45 mm")),
    Sketcher.Constraint("DistanceY", -1, 1, 50, 2, Q("3.45 mm")),
    Sketcher.Constraint("DistanceX", 71, 2, -1, 1, Q("3.45 mm")),
    Sketcher.Constraint("Distance", 5, Q("5.118 mm")),
    Sketcher.Constraint("Distance", 12, Q("5.118 mm")),
    Sketcher.Constraint("Distance", 26, Q("5.118 mm")),
    Sketcher.Constraint("Distance", 33, Q("5.118 mm")),
    Sketcher.Constraint("Distance", 47, Q("5.118 mm")),
    Sketcher.Constraint("Distance", 54, Q("5.118 mm")),
    Sketcher.Constraint("Distance", 68, Q("5.118 mm")),
    Sketcher.Constraint("Distance", 75, Q("5.118 mm")),
    Sketcher.Constraint("DistanceX", 3, 2, 3, 1, Q("2.2994 mm")),
    Sketcher.Constraint("DistanceX", 14, 2, 14, 1, Q("2.2994 mm")),
    Sketcher.Constraint("DistanceX", 45, 1, 45, 2, Q("2.2994 mm")),
    Sketcher.Constraint("DistanceX", 56, 1, 56, 2, Q("2.2994 mm")),
    Sketcher.Constraint("DistanceY", 24, 2, 24, 1, Q("2.2994 mm")),
    Sketcher.Constraint("DistanceY", 35, 2, 35, 1, Q("2.2994 mm")),
    Sketcher.Constraint("DistanceY", 66, 1, 66, 2, Q("2.2994 mm")),
    Sketcher.Constraint("DistanceY", 77, 1, 77, 2, Q("2.2994 mm")),
    Sketcher.Constraint("DistanceX", 6, 3, -1, 1, Q("1.822 mm")),
    Sketcher.Constraint("DistanceY", 7, 3, -1, 1, Q("0.001 mm")),
    Sketcher.Constraint("DistanceY", -1, 1, 10, 3, Q("0.001 mm")),
    Sketcher.Constraint("DistanceX", -1, 1, 11, 3, Q("1.822 mm")),
    Sketcher.Constraint("DistanceY", 27, 3, -1, 1, Q("1.822 mm")),
    Sketcher.Constraint("DistanceX", -1, 1, 28, 3, Q("0.001 mm")),
    Sketcher.Constraint("DistanceX", 31, 3, -1, 1, Q("0.001 mm")),
    Sketcher.Constraint("DistanceY", -1, 1, 32, 3, Q("1.822 mm")),
    Sketcher.Constraint("DistanceX", -1, 1, 48, 3, Q("1.822 mm")),
    Sketcher.Constraint("DistanceY", -1, 1, 49, 3, Q("0.001 mm")),
    Sketcher.Constraint("DistanceY", 52, 3, -1, 1, Q("0.001 mm")),
    Sketcher.Constraint("DistanceX", 53, 3, -1, 1, Q("1.822 mm")),
    Sketcher.Constraint("DistanceY", -1, 1, 69, 3, Q("1.822 mm")),
    Sketcher.Constraint("DistanceX", 70, 3, -1, 1, Q("0.001 mm")),
    Sketcher.Constraint("DistanceX", -1, 1, 73, 3, Q("0.001 mm")),
    Sketcher.Constraint("DistanceY", 74, 3, -1, 1, Q("1.822 mm")),
    Sketcher.Constraint("DistanceY", 4, 1, -1, 1, Q("7.105 mm")),
    Sketcher.Constraint("DistanceY", 5, 2, -1, 1, Q("3.486 mm")),
    Sketcher.Constraint("DistanceY", 6, 1, -1, 1, Q("3.388 mm")),
    Sketcher.Constraint("DistanceY", 7, 2, -1, 1, Q("3.738 mm")),
    Sketcher.Constraint("DistanceY", 10, 2, -1, 1, Q("3.388 mm")),
    Sketcher.Constraint("DistanceY", 11, 1, -1, 1, Q("3.486 mm")),
    Sketcher.Constraint("DistanceY", 12, 2, -1, 1, Q("7.105 mm")),
    Sketcher.Constraint("DistanceX", -1, 1, 25, 1, Q("7.105 mm")),
    Sketcher.Constraint("DistanceX", -1, 1, 26, 2, Q("3.486 mm")),
    Sketcher.Constraint("DistanceX", -1, 1, 27, 1, Q("3.388 mm")),
    Sketcher.Constraint("DistanceX", -1, 1, 28, 2, Q("3.738 mm")),
    Sketcher.Constraint("DistanceX", -1, 1, 31, 2, Q("3.388 mm")),
    Sketcher.Constraint("DistanceX", -1, 1, 32, 1, Q("3.486 mm")),
    Sketcher.Constraint("DistanceX", -1, 1, 33, 2, Q("7.105 mm")),
    Sketcher.Constraint("DistanceY", -1, 1, 46, 1, Q("7.105 mm")),
    Sketcher.Constraint("DistanceY", -1, 1, 47, 2, Q("3.486 mm")),
    Sketcher.Constraint("DistanceY", -1, 1, 48, 1, Q("3.388 mm")),
    Sketcher.Constraint("DistanceY", -1, 1, 49, 2, Q("3.738 mm")),
    Sketcher.Constraint("DistanceY", -1, 1, 52, 2, Q("3.388 mm")),
    Sketcher.Constraint("DistanceY", -1, 1, 53, 1, Q("3.486 mm")),
    Sketcher.Constraint("DistanceY", -1, 1, 54, 2, Q("7.105 mm")),
    Sketcher.Constraint("DistanceX", 67, 1, -1, 1, Q("7.105 mm")),
    Sketcher.Constraint("DistanceX", 68, 2, -1, 1, Q("3.486 mm")),
    Sketcher.Constraint("DistanceX", 69, 1, -1, 1, Q("3.388 mm")),
    Sketcher.Constraint("DistanceX", 70, 2, -1, 1, Q("3.738 mm")),
    Sketcher.Constraint("DistanceX", 73, 2, -1, 1, Q("3.388 mm")),
    Sketcher.Constraint("DistanceX", 74, 1, -1, 1, Q("3.486 mm")),
    Sketcher.Constraint("DistanceX", 75, 2, -1, 1, Q("7.105 mm")),
])
pad1 = body.newObject("PartDesign::Pad", "Pad")
pad1.Profile = sketch1
pad1.Length = 315

doc.recompute()
